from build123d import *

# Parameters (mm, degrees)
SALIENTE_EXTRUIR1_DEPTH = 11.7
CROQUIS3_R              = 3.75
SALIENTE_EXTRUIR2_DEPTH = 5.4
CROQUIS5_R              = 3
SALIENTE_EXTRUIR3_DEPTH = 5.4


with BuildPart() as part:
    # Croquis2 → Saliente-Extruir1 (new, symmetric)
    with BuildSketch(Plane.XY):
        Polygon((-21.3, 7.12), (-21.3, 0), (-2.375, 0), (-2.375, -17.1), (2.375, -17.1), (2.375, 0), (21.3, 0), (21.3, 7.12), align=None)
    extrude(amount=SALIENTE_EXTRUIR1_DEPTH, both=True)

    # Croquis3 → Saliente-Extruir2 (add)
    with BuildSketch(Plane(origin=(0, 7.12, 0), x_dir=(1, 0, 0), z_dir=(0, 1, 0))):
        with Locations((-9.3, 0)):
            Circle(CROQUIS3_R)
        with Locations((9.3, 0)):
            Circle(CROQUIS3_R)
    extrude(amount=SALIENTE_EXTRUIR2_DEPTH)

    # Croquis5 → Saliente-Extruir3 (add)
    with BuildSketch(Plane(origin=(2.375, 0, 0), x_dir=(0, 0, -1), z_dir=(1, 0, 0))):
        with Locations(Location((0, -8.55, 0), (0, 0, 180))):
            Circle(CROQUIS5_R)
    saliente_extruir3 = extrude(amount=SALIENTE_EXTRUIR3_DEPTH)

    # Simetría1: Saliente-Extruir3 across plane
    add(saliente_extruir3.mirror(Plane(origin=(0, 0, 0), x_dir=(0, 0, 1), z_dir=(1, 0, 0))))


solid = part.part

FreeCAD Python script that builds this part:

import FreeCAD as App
import Part
import Sketcher

V = App.Vector


def add_polygon(sketch, points):
    """Adds a closed chain of lines whose ends are joined by coincident constraints."""
    first, n = sketch.GeometryCount, len(points)
    for a, b in zip(points, points[1:] + points[:1]):
        sketch.addGeometry(Part.LineSegment(App.Vector(*a, 0), App.Vector(*b, 0)), False)
    for i in range(n):
        sketch.addConstraint(Sketcher.Constraint("Coincident", first + i, 2, first + (i + 1) % n, 1))

doc = App.newDocument("Part")
body = doc.addObject("PartDesign::Body", "Body")

# Sketch on XY plane
sketch1 = body.newObject("Sketcher::SketchObject", "Sketch")
sketch1.AttachmentSupport = (doc.getObject("XY_Plane"), [""])
sketch1.MapMode = "FlatFace"
add_polygon(sketch1, [(-21.3, 7.12), (-21.3, 0), (-2.375, 0), (-2.375, -17.1), (2.375, -17.1), (2.375, 0), (21.3, 0), (21.3, 7.12)])  # lines 0-7
sketch1.addConstraint(Sketcher.Constraint("Vertical", 0))
sketch1.addConstraint(Sketcher.Constraint("Horizontal", 1))
sketch1.addConstraint(Sketcher.Constraint("Vertical", 2))
sketch1.addConstraint(Sketcher.Constraint("Horizontal", 3))
sketch1.addConstraint(Sketcher.Constraint("Vertical", 4))
sketch1.addConstraint(Sketcher.Constraint("Horizontal", 5))
sketch1.addConstraint(Sketcher.Constraint("Vertical", 6))
sketch1.addConstraint(Sketcher.Constraint("Horizontal", 7))
sketch1.addConstraint(Sketcher.Constraint("Symmetric", 1, 2, 4, 2, -1, 1))
sketch1.addConstraint(Sketcher.Constraint("Symmetric", 0, 2, 5, 2, -2))
sketch1.addConstraint(Sketcher.Constraint("DistanceX", 7, 2, 7, 1, 42.6))
sketch1.addConstraint(Sketcher.Constraint("DistanceY", 2, 2, 2, 1, 17.1))
sketch1.addConstraint(Sketcher.Constraint("DistanceX", 3, 1, 3, 2, 4.75))
sketch1.addConstraint(Sketcher.Constraint("DistanceY", 0, 2, 0, 1, 7.12))
pad1 = body.newObject("PartDesign::Pad", "Pad")
pad1.Profile = sketch1
pad1.Length = 23.4
pad1.Midplane = True

# Sketch on XZ plane
sketch2 = body.newObject("Sketcher::SketchObject", "Sketch001")
sketch2.AttachmentSupport = (doc.getObject("XZ_Plane"), [""])
sketch2.MapMode = "FlatFace"
sketch2.AttachmentOffset = App.Placement(V(0, 0, -7.12), App.Rotation())
sketch2.addGeometry(Part.Circle(V(-9.3, 0, 0), V(0, 0, 1), 3.75), False)
sketch2.addGeometry(Part.Circle(V(9.3, 0, 0), V(0, 0, 1), 3.75), False)
sketch2.addConstraint(Sketcher.Constraint("Equal", 0, 1))
sketch2.addConstraint(Sketcher.Constraint("Symmetric", 0, 3, 1, 3, -1, 1))
sketch2.addConstraint(Sketcher.Constraint("PointOnObject", 0, 3, -1))
sketch2.addConstraint(Sketcher.Constraint("Diameter", 0, 7.5))
sketch2.addConstraint(Sketcher.Constraint("DistanceX", 0, 3, -1, 1, 9.3))
pad2 = body.newObject("PartDesign::Pad", "Pad001")
pad2.Profile = sketch2
pad2.Length = 5.4
pad2.Reversed = True

# Sketch on YZ plane
sketch3 = body.newObject("Sketcher::SketchObject", "Sketch002")
sketch3.AttachmentSupport = (doc.getObject("YZ_Plane"), [""])
sketch3.MapMode = "FlatFace"
sketch3.AttachmentOffset = App.Placement(V(0, 0, 2.375), App.Rotation())
sketch3.addGeometry(Part.Circle(V(-8.55, 0, 0), V(0, 0, 1), 3), False)
sketch3.addConstraint(Sketcher.Constraint("PointOnObject", 0, 3, -1))
sketch3.addConstraint(Sketcher.Constraint("Diameter", 0, 6.0))
sketch3.addConstraint(Sketcher.Constraint("DistanceX", 0, 3, -1, 1, 8.55))
pad3 = body.newObject("PartDesign::Pad", "Pad002")
pad3.Profile = sketch3
pad3.Length = 5.4
doc.recompute()

mirrored = body.newObject("PartDesign::Mirrored", "Mirrored")
mirrored.Originals = [pad3]
mirrored.MirrorPlane = (doc.getObject("YZ_Plane"), [""])
body.Tip = mirrored

doc.recompute()
